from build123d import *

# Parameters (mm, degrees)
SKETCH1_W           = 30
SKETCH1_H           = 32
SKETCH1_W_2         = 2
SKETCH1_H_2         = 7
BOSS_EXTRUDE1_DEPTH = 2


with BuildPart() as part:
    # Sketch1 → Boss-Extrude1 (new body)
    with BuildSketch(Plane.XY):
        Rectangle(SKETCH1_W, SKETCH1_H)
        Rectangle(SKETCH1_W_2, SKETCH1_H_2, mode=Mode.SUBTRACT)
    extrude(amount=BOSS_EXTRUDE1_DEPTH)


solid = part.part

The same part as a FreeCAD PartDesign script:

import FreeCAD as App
import Part
import Sketcher

V = App.Vector


def add_polygon(sketch, points):
    """Adds a closed chain of lines whose ends are joined by coincident constraints."""
    first, n = sketch.GeometryCount, len(points)
    for a, b in zip(points, points[1:] + points[:1]):
        sketch.addGeometry(Part.LineSegment(App.Vector(*a, 0), App.Vector(*b, 0)), False)
    for i in range(n):
        sketch.addConstraint(Sketcher.Constraint("Coincident", first + i, 2, first + (i + 1) % n, 1))

doc = App.newDocument("Part")
body = doc.addObject("PartDesign::Body", "Body")

# Sketch on XY plane
sketch1 = doc.addObject("Sketcher::SketchObject", "Sketch")
body.addObject(sketch1)
sketch1.AttachmentSupport = (doc.XY_Plane, [""])
sketch1.MapMode = "FlatFace"
add_polygon(sketch1, [(-15, 16), (-15, -16), (15, -16), (15, 16)])  # lines 0-3
add_polygon(sketch1, [(1, -3.5), (-1, -3.5), (-1, 3.5), (1, 3.5)])  # lines 4-7
sketch1.addConstraint(Sketcher.Constraint("Vertical", 0))
sketch1.addConstraint(Sketcher.Constraint("Horizontal", 1))
sketch1.addConstraint(Sketcher.Constraint("Vertical", 2))
sketch1.addConstraint(Sketcher.Constraint("Horizontal", 3))
sketch1.addConstraint(Sketcher.Constraint("Horizontal", 4))
sketch1.addConstraint(Sketcher.Constraint("Vertical", 5))
sketch1.addConstraint(Sketcher.Constraint("Horizontal", 6))
sketch1.addConstraint(Sketcher.Constraint("Vertical", 7))
sketch1.addConstraint(Sketcher.Constraint("Symmetric", 0, 2, 2, 2, -1, 1))
sketch1.addConstraint(Sketcher.Constraint("Symmetric", 4, 2, 6, 2, -1, 1))
sketch1.addConstraint(Sketcher.Constraint("DistanceX", 1, 1, 1, 2, 30.0))
sketch1.addConstraint(Sketcher.Constraint("DistanceX", 4, 2, 4, 1, 2.0))
sketch1.addConstraint(Sketcher.Constraint("DistanceY", 0, 2, 0, 1, 32.0))
sketch1.addConstraint(Sketcher.Constraint("DistanceY", 5, 1, 5, 2, 7.0))
pad1 = doc.addObject("PartDesign::Pad", "Pad")
body.addObject(pad1)
pad1.Profile = sketch1
pad1.Length = 2

doc.recompute()
